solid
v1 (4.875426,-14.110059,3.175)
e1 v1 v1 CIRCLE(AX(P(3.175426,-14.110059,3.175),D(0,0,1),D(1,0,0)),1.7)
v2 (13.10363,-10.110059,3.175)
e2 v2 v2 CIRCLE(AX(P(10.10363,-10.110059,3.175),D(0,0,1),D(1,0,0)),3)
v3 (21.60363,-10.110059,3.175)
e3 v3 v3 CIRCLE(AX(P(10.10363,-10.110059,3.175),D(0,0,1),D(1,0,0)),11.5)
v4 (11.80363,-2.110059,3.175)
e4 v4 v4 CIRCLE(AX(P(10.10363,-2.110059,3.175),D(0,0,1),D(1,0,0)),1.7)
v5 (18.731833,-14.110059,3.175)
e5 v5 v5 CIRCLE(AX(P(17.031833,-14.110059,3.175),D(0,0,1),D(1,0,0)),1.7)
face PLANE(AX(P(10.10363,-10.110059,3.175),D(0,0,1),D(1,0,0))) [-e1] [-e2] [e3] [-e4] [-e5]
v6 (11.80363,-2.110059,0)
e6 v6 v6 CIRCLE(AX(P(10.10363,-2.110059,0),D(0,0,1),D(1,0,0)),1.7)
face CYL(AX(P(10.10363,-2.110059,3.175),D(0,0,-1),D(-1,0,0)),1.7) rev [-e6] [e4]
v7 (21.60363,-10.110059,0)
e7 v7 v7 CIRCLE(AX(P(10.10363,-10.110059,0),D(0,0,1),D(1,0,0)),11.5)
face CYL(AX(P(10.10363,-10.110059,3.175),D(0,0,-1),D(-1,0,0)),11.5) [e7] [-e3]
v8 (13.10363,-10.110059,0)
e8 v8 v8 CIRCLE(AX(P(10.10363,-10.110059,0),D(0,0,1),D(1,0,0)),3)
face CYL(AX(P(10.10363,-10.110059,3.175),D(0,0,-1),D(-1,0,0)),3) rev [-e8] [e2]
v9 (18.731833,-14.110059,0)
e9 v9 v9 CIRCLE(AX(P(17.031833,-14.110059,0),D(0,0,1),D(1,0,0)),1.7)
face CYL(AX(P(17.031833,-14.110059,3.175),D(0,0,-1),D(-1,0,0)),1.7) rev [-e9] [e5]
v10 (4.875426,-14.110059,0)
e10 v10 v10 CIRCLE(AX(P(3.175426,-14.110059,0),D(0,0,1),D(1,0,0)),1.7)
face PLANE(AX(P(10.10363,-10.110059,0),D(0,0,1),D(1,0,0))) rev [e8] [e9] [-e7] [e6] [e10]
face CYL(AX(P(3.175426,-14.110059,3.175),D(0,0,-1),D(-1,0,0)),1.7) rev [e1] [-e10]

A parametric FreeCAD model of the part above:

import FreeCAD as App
import Part
import Sketcher

V = App.Vector

doc = App.newDocument("Part")
params = doc.addObject("Spreadsheet::Sheet", "Params")
for row, (alias, value) in enumerate([
    ("sketch1_diameter", "23 mm"),
    ("sketch1_diameter2", "6 mm"),
    ("sketch1_diameter3", "3.4 mm"),
    ("pad1_length", "3.175 mm"),
], start=1):
    params.set(f"A{row}", alias)
    params.set(f"B{row}", "=" + value)
    params.setAlias(f"B{row}", alias)

body = doc.addObject("PartDesign::Body", "Body")

sketch1 = body.newObject("Sketcher::SketchObject", "Sketch")
sketch1.AttachmentSupport = (doc.getObject("XY_Plane"), [""])
sketch1.MapMode = "FlatFace"
sketch1.addGeometry([
    Part.Circle(V(10.1, -10.1, 0), V(0, 0, 1), 11.5),
    Part.Circle(V(3.2, -14.1, 0), V(0, 0, 1), 1.7),
    Part.Circle(V(17, -14.1, 0), V(0, 0, 1), 1.7),
    Part.Circle(V(10.1, -10.1, 0), V(0, 0, 1), 3),
    Part.Circle(V(10.1, -2.1, 0), V(0, 0, 1), 1.7),
], False)
sketch1.addConstraint([
    Sketcher.Constraint("Coincident", 3, 3, 0, 3),
    Sketcher.Constraint("Equal", 1, 2),
    Sketcher.Constraint("Equal", 2, 4),
    Sketcher.Constraint("Horizontal", 1, 3, 2, 3),
    Sketcher.Constraint("Vertical", 3, 3, 4, 3),
    Sketcher.Constraint("Diameter", 0, 23.0),
    Sketcher.Constraint("Diameter", 3, 6.0),
    Sketcher.Constraint("Diameter", 1, 3.4),
    Sketcher.Constraint("DistanceY", 1, 3, 0, 3, 4.0),
    Sketcher.Constraint("DistanceY", 0, 3, 4, 3, 8.0),
    Sketcher.Constraint("DistanceX", -1, 1, 0, 3, 10.10363),
    Sketcher.Constraint("DistanceY", 0, 3, -1, 1, 10.110059),
    Sketcher.Constraint("DistanceX", -1, 1, 1, 3, 3.175426),
    Sketcher.Constraint("DistanceX", -1, 1, 2, 3, 17.031833),
])
sketch1.setExpression("Constraints[5]", "Params.sketch1_diameter")
sketch1.setExpression("Constraints[6]", "Params.sketch1_diameter2")
sketch1.setExpression("Constraints[7]", "Params.sketch1_diameter3")
pad1 = body.newObject("PartDesign::Pad", "Pad")
pad1.Profile = sketch1
pad1.setExpression("Length", "Params.pad1_length")

doc.recompute()
